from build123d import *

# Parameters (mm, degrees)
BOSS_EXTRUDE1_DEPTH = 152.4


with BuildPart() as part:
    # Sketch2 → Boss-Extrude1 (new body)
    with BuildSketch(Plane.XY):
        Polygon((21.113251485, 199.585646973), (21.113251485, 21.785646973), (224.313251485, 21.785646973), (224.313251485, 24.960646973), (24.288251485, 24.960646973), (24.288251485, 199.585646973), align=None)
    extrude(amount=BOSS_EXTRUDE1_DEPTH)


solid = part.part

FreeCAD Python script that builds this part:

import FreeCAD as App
import Part
import Sketcher

V = App.Vector
Q = App.Units.Quantity


def add_polygon(sketch, points):
    """Adds a closed chain of lines whose ends are joined by coincident constraints."""
    first, n = sketch.GeometryCount, len(points)
    for a, b in zip(points, points[1:] + points[:1]):
        sketch.addGeometry(Part.LineSegment(App.Vector(*a, 0), App.Vector(*b, 0)), False)
    for i in range(n):
        sketch.addConstraint(Sketcher.Constraint("Coincident", first + i, 2, first + (i + 1) % n, 1))

doc = App.newDocument("Part")
params = doc.addObject("Spreadsheet::Sheet", "Params")
for row, (alias, value) in enumerate([
    ("sketch1_width", "8 in"),
    ("sketch1_height", "7 in"),
    ("sketch1_width2", "7.875 in"),
    ("pad1_length", "6 in"),
], start=1):
    params.set(f"A{row}", alias)
    params.set(f"B{row}", "=" + value)
    params.setAlias(f"B{row}", alias)

body = doc.addObject("PartDesign::Body", "Body")

sketch1 = doc.addObject("Sketcher::SketchObject", "Sketch")
body.addObject(sketch1)
sketch1.AttachmentSupport = (doc.XY_Plane, [""])
sketch1.MapMode = "FlatFace"
add_polygon(sketch1, [(21.1, 199.6), (21.1, 21.8), (224.3, 21.8), (224.3, 25), (24.3, 25), (24.3, 199.6)])
sketch1.addConstraint(Sketcher.Constraint("Vertical", 0))
sketch1.addConstraint(Sketcher.Constraint("Horizontal", 1))
sketch1.addConstraint(Sketcher.Constraint("Vertical", 2))
sketch1.addConstraint(Sketcher.Constraint("Horizontal", 3))
sketch1.addConstraint(Sketcher.Constraint("Vertical", 4))
sketch1.addConstraint(Sketcher.Constraint("Horizontal", 5))
sketch1.addConstraint(Sketcher.Constraint("Equal", 5, 2))
sketch1.addConstraint(Sketcher.Constraint("DistanceX", 1, 1, 1, 2, Q("8 in")))
sketch1.addConstraint(Sketcher.Constraint("DistanceY", 0, 2, 0, 1, Q("7 in")))
sketch1.addConstraint(Sketcher.Constraint("DistanceX", 3, 2, 3, 1, Q("7.875 in")))
sketch1.addConstraint(Sketcher.Constraint("DistanceX", -1, 1, 0, 2, Q("21.113251 mm")))
sketch1.addConstraint(Sketcher.Constraint("DistanceY", -1, 1, 0, 2, Q("21.785647 mm")))
sketch1.setExpression("Constraints[13]", "Params.sketch1_width")
sketch1.setExpression("Constraints[14]", "Params.sketch1_height")
sketch1.setExpression("Constraints[15]", "Params.sketch1_width2")
pad1 = doc.addObject("PartDesign::Pad", "Pad")
body.addObject(pad1)
pad1.Profile = sketch1
pad1.setExpression("Length", "Params.pad1_length")

doc.recompute()
